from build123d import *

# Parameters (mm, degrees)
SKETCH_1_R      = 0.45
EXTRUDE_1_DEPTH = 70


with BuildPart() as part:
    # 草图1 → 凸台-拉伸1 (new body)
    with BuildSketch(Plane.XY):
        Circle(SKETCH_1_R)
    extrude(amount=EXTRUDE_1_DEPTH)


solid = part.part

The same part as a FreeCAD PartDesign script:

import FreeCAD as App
import Part
import Sketcher
from FreeCAD import Vector
Q = App.Units.Quantity

doc = App.newDocument("Part")
body = doc.addObject("PartDesign::Body", "Body")

sketch1 = body.newObject("Sketcher::SketchObject", "Sketch")
sketch1.AttachmentSupport = (doc.getObject("XY_Plane"), [""])
sketch1.MapMode = "FlatFace"
sketch1.addGeometry(Part.Circle(Vector(0, 0, 0), Vector(0, 0, 1), 0.45), False)
sketch1.addConstraint(Sketcher.Constraint("Coincident", 0, 3, -1, 1))
sketch1.addConstraint(Sketcher.Constraint("Diameter", 0, Q("0.9 mm")))
pad1 = body.newObject("PartDesign::Pad", "Pad")
pad1.Profile = sketch1
pad1.Length = 70

doc.recompute()
